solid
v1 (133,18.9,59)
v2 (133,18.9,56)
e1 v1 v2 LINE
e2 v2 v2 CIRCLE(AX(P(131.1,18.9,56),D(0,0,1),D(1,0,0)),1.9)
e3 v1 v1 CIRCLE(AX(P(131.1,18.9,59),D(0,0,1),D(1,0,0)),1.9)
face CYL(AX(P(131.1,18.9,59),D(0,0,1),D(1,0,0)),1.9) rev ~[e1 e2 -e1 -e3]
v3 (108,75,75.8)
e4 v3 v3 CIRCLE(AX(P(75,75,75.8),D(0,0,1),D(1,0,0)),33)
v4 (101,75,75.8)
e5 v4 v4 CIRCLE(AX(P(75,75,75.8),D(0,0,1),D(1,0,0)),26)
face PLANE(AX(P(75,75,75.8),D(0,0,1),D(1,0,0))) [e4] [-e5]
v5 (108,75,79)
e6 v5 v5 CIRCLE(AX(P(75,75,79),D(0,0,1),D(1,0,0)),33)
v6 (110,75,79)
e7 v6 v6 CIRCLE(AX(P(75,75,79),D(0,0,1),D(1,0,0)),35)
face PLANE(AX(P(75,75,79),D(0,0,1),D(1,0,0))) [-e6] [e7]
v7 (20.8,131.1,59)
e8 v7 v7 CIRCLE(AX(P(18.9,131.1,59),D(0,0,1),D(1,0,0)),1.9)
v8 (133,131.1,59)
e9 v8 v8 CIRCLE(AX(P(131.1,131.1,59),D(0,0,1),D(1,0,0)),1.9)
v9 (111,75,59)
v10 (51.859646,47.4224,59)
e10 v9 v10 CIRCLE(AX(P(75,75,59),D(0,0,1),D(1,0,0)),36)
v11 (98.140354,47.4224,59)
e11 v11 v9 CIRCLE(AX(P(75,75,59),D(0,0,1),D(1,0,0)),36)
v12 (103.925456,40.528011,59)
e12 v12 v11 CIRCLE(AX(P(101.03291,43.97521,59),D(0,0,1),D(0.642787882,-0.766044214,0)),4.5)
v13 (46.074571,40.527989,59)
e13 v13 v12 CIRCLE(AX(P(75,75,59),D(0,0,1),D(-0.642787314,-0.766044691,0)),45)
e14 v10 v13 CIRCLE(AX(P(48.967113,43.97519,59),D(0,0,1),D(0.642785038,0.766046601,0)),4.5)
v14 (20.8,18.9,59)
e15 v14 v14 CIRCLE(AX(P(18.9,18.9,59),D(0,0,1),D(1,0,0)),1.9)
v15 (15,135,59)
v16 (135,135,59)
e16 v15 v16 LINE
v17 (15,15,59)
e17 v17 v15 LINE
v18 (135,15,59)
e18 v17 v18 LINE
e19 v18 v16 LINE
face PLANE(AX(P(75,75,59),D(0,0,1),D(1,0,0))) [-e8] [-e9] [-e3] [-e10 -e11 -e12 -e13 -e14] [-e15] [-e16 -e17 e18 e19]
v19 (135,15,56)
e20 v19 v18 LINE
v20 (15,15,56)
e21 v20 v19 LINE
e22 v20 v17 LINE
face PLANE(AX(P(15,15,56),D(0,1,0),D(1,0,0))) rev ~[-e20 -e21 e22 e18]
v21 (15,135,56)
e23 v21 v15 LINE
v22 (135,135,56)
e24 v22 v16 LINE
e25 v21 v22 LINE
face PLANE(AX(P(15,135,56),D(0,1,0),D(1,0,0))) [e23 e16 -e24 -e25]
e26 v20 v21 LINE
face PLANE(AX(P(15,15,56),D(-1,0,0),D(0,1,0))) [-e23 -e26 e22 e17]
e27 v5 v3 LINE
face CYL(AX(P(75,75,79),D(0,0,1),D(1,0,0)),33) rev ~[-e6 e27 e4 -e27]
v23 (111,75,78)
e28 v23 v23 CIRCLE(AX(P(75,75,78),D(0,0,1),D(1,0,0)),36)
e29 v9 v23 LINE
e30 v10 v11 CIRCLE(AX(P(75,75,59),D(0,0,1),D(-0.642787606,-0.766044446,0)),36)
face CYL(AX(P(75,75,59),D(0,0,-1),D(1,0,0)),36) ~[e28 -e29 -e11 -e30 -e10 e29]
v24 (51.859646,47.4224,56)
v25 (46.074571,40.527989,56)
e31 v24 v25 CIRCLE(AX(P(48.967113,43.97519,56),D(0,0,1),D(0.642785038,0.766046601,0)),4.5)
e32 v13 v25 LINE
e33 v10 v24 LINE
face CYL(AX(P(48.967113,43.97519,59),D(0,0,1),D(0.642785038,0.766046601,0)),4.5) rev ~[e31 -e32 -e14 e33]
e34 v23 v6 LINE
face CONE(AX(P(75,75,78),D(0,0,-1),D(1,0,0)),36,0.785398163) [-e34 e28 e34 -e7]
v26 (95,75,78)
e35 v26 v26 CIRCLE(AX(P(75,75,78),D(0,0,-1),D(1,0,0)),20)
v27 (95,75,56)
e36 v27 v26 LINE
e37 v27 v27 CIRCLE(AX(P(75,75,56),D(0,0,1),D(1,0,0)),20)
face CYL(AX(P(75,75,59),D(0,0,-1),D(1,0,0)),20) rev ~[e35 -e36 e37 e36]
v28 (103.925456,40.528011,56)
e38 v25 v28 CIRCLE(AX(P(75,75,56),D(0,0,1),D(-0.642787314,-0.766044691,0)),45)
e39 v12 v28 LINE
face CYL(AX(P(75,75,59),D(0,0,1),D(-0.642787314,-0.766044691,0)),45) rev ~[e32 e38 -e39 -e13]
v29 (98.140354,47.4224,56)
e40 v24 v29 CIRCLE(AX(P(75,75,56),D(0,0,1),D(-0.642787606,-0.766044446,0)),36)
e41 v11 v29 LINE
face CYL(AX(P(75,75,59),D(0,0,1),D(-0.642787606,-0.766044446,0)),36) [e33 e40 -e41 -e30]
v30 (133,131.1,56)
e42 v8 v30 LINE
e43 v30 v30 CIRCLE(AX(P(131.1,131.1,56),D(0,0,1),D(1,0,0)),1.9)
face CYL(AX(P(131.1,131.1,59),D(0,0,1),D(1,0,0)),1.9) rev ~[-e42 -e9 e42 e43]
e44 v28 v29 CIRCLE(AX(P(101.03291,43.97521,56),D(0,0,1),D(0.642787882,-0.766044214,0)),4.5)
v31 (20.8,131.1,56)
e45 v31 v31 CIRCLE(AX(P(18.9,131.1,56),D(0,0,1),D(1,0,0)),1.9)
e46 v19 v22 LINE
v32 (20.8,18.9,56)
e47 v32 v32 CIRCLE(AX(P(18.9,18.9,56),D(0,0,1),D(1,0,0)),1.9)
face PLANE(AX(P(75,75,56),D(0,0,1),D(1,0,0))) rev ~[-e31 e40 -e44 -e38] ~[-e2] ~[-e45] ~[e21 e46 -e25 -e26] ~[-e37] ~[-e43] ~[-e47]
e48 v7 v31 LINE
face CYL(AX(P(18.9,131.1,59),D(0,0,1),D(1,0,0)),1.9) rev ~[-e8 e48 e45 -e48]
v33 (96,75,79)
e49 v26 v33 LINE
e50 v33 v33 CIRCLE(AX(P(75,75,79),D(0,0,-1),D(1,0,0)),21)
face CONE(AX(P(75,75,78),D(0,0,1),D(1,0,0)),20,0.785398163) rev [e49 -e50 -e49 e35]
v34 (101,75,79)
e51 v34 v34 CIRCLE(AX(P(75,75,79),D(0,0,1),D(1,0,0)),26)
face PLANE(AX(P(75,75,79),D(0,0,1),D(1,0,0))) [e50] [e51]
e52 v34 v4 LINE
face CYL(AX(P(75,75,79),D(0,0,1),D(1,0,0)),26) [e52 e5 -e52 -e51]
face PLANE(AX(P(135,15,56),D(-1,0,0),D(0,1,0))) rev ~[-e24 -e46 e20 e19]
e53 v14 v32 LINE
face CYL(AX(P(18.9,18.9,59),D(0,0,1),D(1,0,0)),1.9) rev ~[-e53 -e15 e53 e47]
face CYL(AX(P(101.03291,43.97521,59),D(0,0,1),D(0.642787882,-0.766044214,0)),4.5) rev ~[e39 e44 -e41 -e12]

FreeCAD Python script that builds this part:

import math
import FreeCAD as App
import Part
import Sketcher
from FreeCAD import Vector
Q = App.Units.Quantity


def edges_at(feature, points):
    """Names of the edges that pass closest to the given points."""
    edges = feature.Shape.Edges
    near = lambda p: min(range(len(edges)), key=lambda i: edges[i].distToShape(Part.Vertex(*p))[0])
    return sorted({f"Edge{near(p) + 1}" for p in points})

doc = App.newDocument("Part")
body = doc.addObject("PartDesign::Body", "Body")

sketch1 = doc.addObject("Sketcher::SketchObject", "Sketch")
body.addObject(sketch1)
sketch1.AttachmentSupport = (doc.XZ_Plane, [""])
sketch1.MapMode = "FlatFace"
sketch1.addGeometry(Part.LineSegment(Vector(0, 120, 0), Vector(0, 0, 0)), False)
sketch1.addGeometry(Part.LineSegment(Vector(0, 0, 0), Vector(120, 0, 0)), False)
sketch1.addGeometry(Part.LineSegment(Vector(120, 0, 0), Vector(120, 120, 0)), False)
sketch1.addGeometry(Part.LineSegment(Vector(120, 120, 0), Vector(0, 120, 0)), False)
sketch1.addConstraint(Sketcher.Constraint("Coincident", 0, 2, 1, 1))
sketch1.addConstraint(Sketcher.Constraint("Coincident", 1, 2, 2, 1))
sketch1.addConstraint(Sketcher.Constraint("Coincident", 2, 2, 3, 1))
sketch1.addConstraint(Sketcher.Constraint("Coincident", 3, 2, 0, 1))
sketch1.addConstraint(Sketcher.Constraint("Vertical", 0))
sketch1.addConstraint(Sketcher.Constraint("Horizontal", 1))
sketch1.addConstraint(Sketcher.Constraint("Vertical", 2))
sketch1.addConstraint(Sketcher.Constraint("Horizontal", 3))
sketch1.addConstraint(Sketcher.Constraint("Coincident", 0, 2, -1, 1))
sketch1.addConstraint(Sketcher.Constraint("Equal", 3, 0))
sketch1.addConstraint(Sketcher.Constraint("DistanceX", 1, 1, 1, 2, Q("120 mm")))
pad1 = doc.addObject("PartDesign::Pad", "Pad")
body.addObject(pad1)
pad1.Profile = sketch1
pad1.Length = 3

sketch2 = doc.addObject("Sketcher::SketchObject", "Sketch001")
body.addObject(sketch2)
sketch2.AttachmentSupport = (doc.XZ_Plane, [""])
sketch2.MapMode = "FlatFace"
sketch2.AttachmentOffset = App.Placement(Vector(0, 0, 3), App.Rotation())
sketch2.addGeometry(Part.Circle(Vector(3.9, 3.9, 0), Vector(0, 0, 1), 1.9), False)
sketch2.addGeometry(Part.Circle(Vector(116.1, 3.9, 0), Vector(0, 0, 1), 1.9), False)
sketch2.addGeometry(Part.Circle(Vector(116.1, 116.1, 0), Vector(0, 0, 1), 1.9), False)
sketch2.addGeometry(Part.Circle(Vector(3.9, 116.1, 0), Vector(0, 0, 1), 1.9), False)
sketch2.addConstraint(Sketcher.Constraint("Equal", 0, 1))
sketch2.addConstraint(Sketcher.Constraint("Equal", 1, 2))
sketch2.addConstraint(Sketcher.Constraint("Equal", 2, 3))
sketch2.addConstraint(Sketcher.Constraint("Horizontal", 0, 3, 1, 3))
sketch2.addConstraint(Sketcher.Constraint("Horizontal", 2, 3, 3, 3))
sketch2.addConstraint(Sketcher.Constraint("Vertical", 1, 3, 2, 3))
sketch2.addConstraint(Sketcher.Constraint("Vertical", 0, 3, 3, 3))
sketch2.addConstraint(Sketcher.Constraint("Diameter", 0, Q("3.8 mm")))
sketch2.addConstraint(Sketcher.Constraint("DistanceX", -1, 1, 0, 3, Q("3.9 mm")))
sketch2.addConstraint(Sketcher.Constraint("DistanceY", -1, 1, 0, 3, Q("3.9 mm")))
sketch2.addConstraint(Sketcher.Constraint("DistanceX", -1, 1, 1, 3, Q("116.1 mm")))
sketch2.addConstraint(Sketcher.Constraint("DistanceY", -1, 1, 2, 3, Q("116.1 mm")))
pocket1 = doc.addObject("PartDesign::Pocket", "Pocket")
body.addObject(pocket1)
pocket1.Profile = sketch2
pocket1.Type = "ThroughAll"

sketch3 = doc.addObject("Sketcher::SketchObject", "Sketch002")
body.addObject(sketch3)
sketch3.AttachmentSupport = (doc.XZ_Plane, [""])
sketch3.MapMode = "FlatFace"
sketch3.AttachmentOffset = App.Placement(Vector(0, 0, 3), App.Rotation())
sketch3.addGeometry(Part.Circle(Vector(60, 60, 0), Vector(0, 0, 1), 20), False)
sketch3.addConstraint(Sketcher.Constraint("Diameter", 0, Q("40 mm")))
sketch3.addConstraint(Sketcher.Constraint("DistanceX", -1, 1, 0, 3, Q("60 mm")))
sketch3.addConstraint(Sketcher.Constraint("DistanceY", -1, 1, 0, 3, Q("60 mm")))
pocket2 = doc.addObject("PartDesign::Pocket", "Pocket001")
body.addObject(pocket2)
pocket2.Profile = sketch3
pocket2.Type = "ThroughAll"

sketch4 = doc.addObject("Sketcher::SketchObject", "Sketch003")
body.addObject(sketch4)
sketch4.AttachmentSupport = (doc.XZ_Plane, [""])
sketch4.MapMode = "FlatFace"
sketch4.AttachmentOffset = App.Placement(Vector(0, 0, 3), App.Rotation())
sketch4.addGeometry(Part.Circle(Vector(60, 60, 0), Vector(0, 0, 1), 36), False)
sketch4.addConstraint(Sketcher.Constraint("Diameter", 0, Q("72 mm")))
sketch4.addConstraint(Sketcher.Constraint("DistanceX", -1, 1, 0, 3, Q("60 mm")))
sketch4.addConstraint(Sketcher.Constraint("DistanceY", -1, 1, 0, 3, Q("60 mm")))
pad2 = doc.addObject("PartDesign::Pad", "Pad001")
body.addObject(pad2)
pad2.Profile = sketch4
pad2.Length = 20

sketch5 = doc.addObject("Sketcher::SketchObject", "Sketch004")
body.addObject(sketch5)
sketch5.AttachmentSupport = (doc.XZ_Plane, [""])
sketch5.MapMode = "FlatFace"
sketch5.AttachmentOffset = App.Placement(Vector(0, 0, 3), App.Rotation())
sketch5.addGeometry(Part.Circle(Vector(60, 60, 0), Vector(0, 0, 1), 20), False)
sketch5.addConstraint(Sketcher.Constraint("Diameter", 0, Q("40 mm")))
sketch5.addConstraint(Sketcher.Constraint("DistanceX", -1, 1, 0, 3, Q("60 mm")))
sketch5.addConstraint(Sketcher.Constraint("DistanceY", -1, 1, 0, 3, Q("60 mm")))
pocket3 = doc.addObject("PartDesign::Pocket", "Pocket002")
body.addObject(pocket3)
pocket3.Profile = sketch5
pocket3.Type = "ThroughAll"
pocket3.Reversed = True

sketch6 = doc.addObject("Sketcher::SketchObject", "Sketch005")
body.addObject(sketch6)
sketch6.AttachmentSupport = (doc.XZ_Plane, [""])
sketch6.MapMode = "FlatFace"
sketch6.AttachmentOffset = App.Placement(Vector(0, 0, 23), App.Rotation())
sketch6.addGeometry(Part.Circle(Vector(60, 60, 0), Vector(0, 0, 1), 33), False)
sketch6.addGeometry(Part.Circle(Vector(60, 60, 0), Vector(0, 0, 1), 26), False)
sketch6.addConstraint(Sketcher.Constraint("Coincident", 1, 3, 0, 3))
sketch6.addConstraint(Sketcher.Constraint("Diameter", 0, Q("66 mm")))
sketch6.addConstraint(Sketcher.Constraint("Diameter", 1, Q("52 mm")))
sketch6.addConstraint(Sketcher.Constraint("DistanceX", -1, 1, 0, 3, Q("60 mm")))
sketch6.addConstraint(Sketcher.Constraint("DistanceY", -1, 1, 0, 3, Q("60 mm")))
pocket4 = doc.addObject("PartDesign::Pocket", "Pocket003")
body.addObject(pocket4)
pocket4.Profile = sketch6
pocket4.Length = 3.2
doc.recompute()

chamfer = doc.addObject("PartDesign::Chamfer", "Chamfer")
body.addObject(chamfer)
chamfer.Base = (pocket4, edges_at(pocket4, [(40, -23, 60)]))
chamfer.Size = 1
doc.recompute()

chamfer2 = doc.addObject("PartDesign::Chamfer", "Chamfer001")
body.addObject(chamfer2)
chamfer2.Base = (chamfer, edges_at(chamfer, [(24, -23, 60)]))
chamfer2.Size = 1

sketch7 = doc.addObject("Sketcher::SketchObject", "Sketch006")
body.addObject(sketch7)
sketch7.AttachmentSupport = (doc.XZ_Plane, [""])
sketch7.MapMode = "FlatFace"
sketch7.AttachmentOffset = App.Placement(Vector(0, 0, 3), App.Rotation())
sketch7.addGeometry(Part.ArcOfCircle(Part.Circle(Vector(60, 60, 0), Vector(0, 0, 1), 36), math.radians(-130), math.radians(-50)), False)
sketch7.addGeometry(Part.ArcOfCircle(Part.Circle(Vector(33.967113, 28.97519, 0), Vector(0, 0, 1), 4.5), math.radians(50.000192), math.radians(230.000029)), False)
sketch7.addGeometry(Part.ArcOfCircle(Part.Circle(Vector(60, 60, 0), Vector(0, 0, 1), 45), math.radians(-129.999978), math.radians(-49.999979)), False)
sketch7.addGeometry(Part.ArcOfCircle(Part.Circle(Vector(86.03291, 28.97521, 0), Vector(0, 0, 1), 4.5), math.radians(-49.99998), math.radians(130.000201)), False)
sketch7.addConstraint(Sketcher.Constraint("Coincident", 0, 1, 1, 1))
sketch7.addConstraint(Sketcher.Constraint("Tangent", 1, 2, 2, 1))
sketch7.addConstraint(Sketcher.Constraint("Tangent", 2, 2, 3, 1))
sketch7.addConstraint(Sketcher.Constraint("Coincident", 3, 2, 0, 2))
sketch7.addConstraint(Sketcher.Constraint("Coincident", 2, 3, 0, 3))
sketch7.addConstraint(Sketcher.Constraint("Horizontal", 0, 1, 3, 2))
sketch7.addConstraint(Sketcher.Constraint("Radius", 0, Q("36 mm")))
sketch7.addConstraint(Sketcher.Constraint("Radius", 2, Q("45 mm")))
sketch7.addConstraint(Sketcher.Constraint("DistanceX", -1, 1, 0, 3, Q("60 mm")))
sketch7.addConstraint(Sketcher.Constraint("DistanceY", -1, 1, 0, 3, Q("60 mm")))
sketch7.addConstraint(Sketcher.Constraint("DistanceY", -1, 1, 0, 1, Q("32.4224 mm")))
sketch7.addConstraint(Sketcher.Constraint("DistanceY", 1, 2, 1, 3, Q("3.447201 mm")))
sketch7.addConstraint(Sketcher.Constraint("DistanceY", 2, 2, 3, 3, Q("3.447199 mm")))
pocket5 = doc.addObject("PartDesign::Pocket", "Pocket004")
body.addObject(pocket5)
pocket5.Profile = sketch7
pocket5.Type = "ThroughAll"
body2 = doc.addObject("PartDesign::Body", "Body001")
doc.recompute()

body.Placement = App.Placement(Vector(15, 15, 56), App.Rotation(Vector(-1, 0, 0), 90))
boolean = doc.addObject("PartDesign::Boolean", "Boolean")
body2.addObject(boolean)
boolean.Type = "Fuse"
boolean.addObjects([body])

doc.recompute()
